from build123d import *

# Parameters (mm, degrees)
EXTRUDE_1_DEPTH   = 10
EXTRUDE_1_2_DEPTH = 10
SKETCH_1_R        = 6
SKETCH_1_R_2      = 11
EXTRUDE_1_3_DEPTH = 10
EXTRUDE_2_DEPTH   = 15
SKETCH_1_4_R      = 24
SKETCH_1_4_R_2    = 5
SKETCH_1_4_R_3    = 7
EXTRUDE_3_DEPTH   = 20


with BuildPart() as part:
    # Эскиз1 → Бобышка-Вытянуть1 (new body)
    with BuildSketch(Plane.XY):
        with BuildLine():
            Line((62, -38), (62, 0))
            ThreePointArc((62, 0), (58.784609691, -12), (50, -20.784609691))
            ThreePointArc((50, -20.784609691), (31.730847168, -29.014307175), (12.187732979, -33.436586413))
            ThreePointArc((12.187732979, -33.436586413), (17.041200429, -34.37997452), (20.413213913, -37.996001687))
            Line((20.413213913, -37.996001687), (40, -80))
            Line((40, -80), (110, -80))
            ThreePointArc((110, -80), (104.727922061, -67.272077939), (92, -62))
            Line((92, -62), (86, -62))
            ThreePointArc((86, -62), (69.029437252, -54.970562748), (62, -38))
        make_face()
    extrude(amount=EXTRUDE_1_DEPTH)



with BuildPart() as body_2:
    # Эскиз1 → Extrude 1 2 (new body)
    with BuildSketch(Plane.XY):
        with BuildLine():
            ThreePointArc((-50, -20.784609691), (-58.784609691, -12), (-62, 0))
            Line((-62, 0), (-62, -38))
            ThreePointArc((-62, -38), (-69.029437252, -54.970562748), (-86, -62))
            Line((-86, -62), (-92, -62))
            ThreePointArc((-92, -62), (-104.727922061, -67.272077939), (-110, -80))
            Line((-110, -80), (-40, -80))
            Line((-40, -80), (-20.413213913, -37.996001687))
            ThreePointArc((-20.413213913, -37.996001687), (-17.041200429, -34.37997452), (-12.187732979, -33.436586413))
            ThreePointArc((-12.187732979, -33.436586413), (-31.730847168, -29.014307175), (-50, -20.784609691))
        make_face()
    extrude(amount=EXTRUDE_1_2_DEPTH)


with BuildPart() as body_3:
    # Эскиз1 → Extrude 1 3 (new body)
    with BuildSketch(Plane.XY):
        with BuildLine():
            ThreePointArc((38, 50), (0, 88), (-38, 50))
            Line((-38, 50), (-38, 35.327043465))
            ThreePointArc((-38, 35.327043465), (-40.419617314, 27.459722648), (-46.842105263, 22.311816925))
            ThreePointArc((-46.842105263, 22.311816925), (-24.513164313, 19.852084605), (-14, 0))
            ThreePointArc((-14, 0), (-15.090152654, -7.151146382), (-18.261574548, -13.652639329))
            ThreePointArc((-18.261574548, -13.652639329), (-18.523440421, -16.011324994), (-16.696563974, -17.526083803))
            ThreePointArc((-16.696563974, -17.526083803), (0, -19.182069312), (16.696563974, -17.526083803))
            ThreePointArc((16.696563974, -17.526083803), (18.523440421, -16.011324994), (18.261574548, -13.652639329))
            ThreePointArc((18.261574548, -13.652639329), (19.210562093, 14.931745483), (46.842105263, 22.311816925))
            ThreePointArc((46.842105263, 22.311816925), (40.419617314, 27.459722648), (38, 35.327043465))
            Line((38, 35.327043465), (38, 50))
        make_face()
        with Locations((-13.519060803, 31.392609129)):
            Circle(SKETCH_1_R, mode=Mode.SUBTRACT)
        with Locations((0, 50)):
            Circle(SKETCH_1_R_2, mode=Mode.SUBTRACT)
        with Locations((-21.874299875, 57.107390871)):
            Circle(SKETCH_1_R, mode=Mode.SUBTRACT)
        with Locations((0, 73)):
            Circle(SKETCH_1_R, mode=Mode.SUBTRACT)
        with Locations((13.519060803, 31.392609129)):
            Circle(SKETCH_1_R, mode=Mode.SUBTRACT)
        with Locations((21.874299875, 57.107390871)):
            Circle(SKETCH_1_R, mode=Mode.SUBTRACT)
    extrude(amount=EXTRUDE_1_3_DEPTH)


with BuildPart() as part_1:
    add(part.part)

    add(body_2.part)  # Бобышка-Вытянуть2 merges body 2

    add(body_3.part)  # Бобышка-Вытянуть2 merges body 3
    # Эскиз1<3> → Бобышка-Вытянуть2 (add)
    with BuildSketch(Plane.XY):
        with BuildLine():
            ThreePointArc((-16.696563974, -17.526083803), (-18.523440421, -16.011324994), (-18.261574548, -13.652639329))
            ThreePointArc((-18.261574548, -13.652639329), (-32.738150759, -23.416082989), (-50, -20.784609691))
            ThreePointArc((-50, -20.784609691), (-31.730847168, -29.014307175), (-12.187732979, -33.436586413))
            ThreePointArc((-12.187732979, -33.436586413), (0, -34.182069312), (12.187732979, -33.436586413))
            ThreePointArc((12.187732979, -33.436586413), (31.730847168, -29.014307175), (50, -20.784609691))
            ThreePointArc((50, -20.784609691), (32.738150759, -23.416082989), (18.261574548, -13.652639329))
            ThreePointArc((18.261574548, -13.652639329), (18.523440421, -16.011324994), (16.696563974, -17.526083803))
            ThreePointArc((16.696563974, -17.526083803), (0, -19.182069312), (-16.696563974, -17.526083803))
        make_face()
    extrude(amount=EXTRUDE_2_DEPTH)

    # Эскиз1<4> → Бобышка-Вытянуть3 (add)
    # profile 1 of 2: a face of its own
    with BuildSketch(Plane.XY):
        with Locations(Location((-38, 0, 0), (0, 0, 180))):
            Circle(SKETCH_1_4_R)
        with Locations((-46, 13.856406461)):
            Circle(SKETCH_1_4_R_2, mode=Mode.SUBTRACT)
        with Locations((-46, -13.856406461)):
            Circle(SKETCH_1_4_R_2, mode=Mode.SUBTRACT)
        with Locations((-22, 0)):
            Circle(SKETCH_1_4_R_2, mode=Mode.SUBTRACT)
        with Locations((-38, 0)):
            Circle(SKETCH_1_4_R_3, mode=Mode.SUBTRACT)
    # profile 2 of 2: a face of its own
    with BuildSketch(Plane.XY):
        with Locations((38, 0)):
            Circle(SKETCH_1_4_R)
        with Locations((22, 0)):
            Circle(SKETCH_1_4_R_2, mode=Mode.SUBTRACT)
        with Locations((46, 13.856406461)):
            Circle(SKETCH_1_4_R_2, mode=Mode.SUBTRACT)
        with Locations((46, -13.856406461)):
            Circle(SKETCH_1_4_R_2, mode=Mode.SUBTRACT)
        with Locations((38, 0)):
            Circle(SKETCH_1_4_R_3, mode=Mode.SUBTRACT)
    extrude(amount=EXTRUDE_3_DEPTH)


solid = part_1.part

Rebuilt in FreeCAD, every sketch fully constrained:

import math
import FreeCAD as App
import Part
import Sketcher
Q = App.Units.Quantity

doc = App.newDocument("Part")
body = doc.addObject("PartDesign::Body", "Body")

# Sketch on XY plane
sketch1 = doc.addObject("Sketcher::SketchObject", "Sketch")
body.addObject(sketch1)
sketch1.AttachmentSupport = (doc.XY_Plane, [""])
sketch1.MapMode = "FlatFace"
sketch1.addGeometry([
    Part.LineSegment(App.Vector(62, -38, 0), App.Vector(62, 0, 0)),  # 0
    Part.ArcOfCircle(Part.Circle(App.Vector(38, 0, 0), App.Vector(0, 0, 1), 24), math.radians(-60), math.radians(0)),  # 1
    Part.ArcOfCircle(Part.Circle(App.Vector(0, 65.817931, 0), App.Vector(0, 0, 1), 100), math.radians(-82.999539), math.radians(-60)),  # 2
    Part.ArcOfCircle(Part.Circle(App.Vector(13.162752, -41.376948, 0), App.Vector(0, 0, 1), 8), math.radians(25), math.radians(97.000461)),  # 3
    Part.LineSegment(App.Vector(20.413214, -37.996002, 0), App.Vector(40, -80, 0)),  # 4
    Part.LineSegment(App.Vector(40, -80, 0), App.Vector(110, -80, 0)),  # 5
    Part.ArcOfCircle(Part.Circle(App.Vector(92, -80, 0), App.Vector(0, 0, 1), 18), math.radians(0), math.radians(90)),  # 6
    Part.LineSegment(App.Vector(92, -62, 0), App.Vector(86, -62, 0)),  # 7
    Part.ArcOfCircle(Part.Circle(App.Vector(86, -38, 0), App.Vector(0, 0, 1), 24), math.radians(-180), math.radians(-90)),  # 8
], False)
sketch1.addConstraint([
    Sketcher.Constraint("Tangent", 0, 2, 1, 2),
    Sketcher.Constraint("Tangent", 1, 1, 2, 2),
    Sketcher.Constraint("Tangent", 2, 1, 3, 2),
    Sketcher.Constraint("Tangent", 3, 1, 4, 1),
    Sketcher.Constraint("Coincident", 4, 2, 5, 1),
    Sketcher.Constraint("Coincident", 5, 2, 6, 1),
    Sketcher.Constraint("Tangent", 6, 2, 7, 1),
    Sketcher.Constraint("Tangent", 7, 2, 8, 2),
    Sketcher.Constraint("Tangent", 8, 1, 0, 1),
    Sketcher.Constraint("Vertical", 0),
    Sketcher.Constraint("Horizontal", 5),
    Sketcher.Constraint("Horizontal", 7),
    Sketcher.Constraint("Equal", 1, 8),
    Sketcher.Constraint("PointOnObject", 1, 3, -1),
    Sketcher.Constraint("PointOnObject", 2, 3, -2),
    Sketcher.Constraint("Horizontal", 6, 3, 4, 2),
    Sketcher.Constraint("Radius", 1, 24.0),
    Sketcher.Constraint("Radius", 2, 100.0),
    Sketcher.Constraint("Radius", 3, 8.0),
    Sketcher.Constraint("Radius", 6, 18.0),
    Sketcher.Constraint("DistanceX", 5, 1, 5, 2, 70.0),
    Sketcher.Constraint("DistanceX", 7, 2, 7, 1, 6.0),
    Sketcher.Constraint("DistanceY", 0, 1, 0, 2, 38.0),
    Sketcher.Constraint("Angle", 4, Q("-65 deg")),
    Sketcher.Constraint("DistanceX", -1, 1, 1, 3, 38.0),
])
pad1 = doc.addObject("PartDesign::Pad", "Pad")
body.addObject(pad1)
pad1.Profile = sketch1
pad1.Length = 10
body2 = doc.addObject("PartDesign::Body", "Body001")

# Sketch on XY plane
sketch2 = doc.addObject("Sketcher::SketchObject", "Sketch001")
body2.addObject(sketch2)
sketch2.AttachmentSupport = (doc.getObject("XY_Plane001"), [""])
sketch2.MapMode = "FlatFace"
sketch2.addGeometry([
    Part.ArcOfCircle(Part.Circle(App.Vector(-38, 0, 0), App.Vector(0, 0, 1), 24), math.radians(180), math.radians(240)),  # 0
    Part.LineSegment(App.Vector(-62, 0, 0), App.Vector(-62, -38, 0)),  # 1
    Part.ArcOfCircle(Part.Circle(App.Vector(-86, -38, 0), App.Vector(0, 0, 1), 24), math.radians(-90), math.radians(0)),  # 2
    Part.LineSegment(App.Vector(-86, -62, 0), App.Vector(-92, -62, 0)),  # 3
    Part.ArcOfCircle(Part.Circle(App.Vector(-92, -80, 0), App.Vector(0, 0, 1), 18), math.radians(90), math.radians(180)),  # 4
    Part.LineSegment(App.Vector(-110, -80, 0), App.Vector(-40, -80, 0)),  # 5
    Part.LineSegment(App.Vector(-40, -80, 0), App.Vector(-20.413214, -37.996002, 0)),  # 6
    Part.ArcOfCircle(Part.Circle(App.Vector(-13.162752, -41.376948, 0), App.Vector(0, 0, 1), 8), math.radians(82.999539), math.radians(155)),  # 7
    Part.ArcOfCircle(Part.Circle(App.Vector(0, 65.817931, 0), App.Vector(0, 0, 1), 100), math.radians(-120), math.radians(-97.000461)),  # 8
], False)
sketch2.addConstraint([
    Sketcher.Constraint("Tangent", 0, 1, 1, 1),
    Sketcher.Constraint("Tangent", 1, 2, 2, 2),
    Sketcher.Constraint("Tangent", 2, 1, 3, 1),
    Sketcher.Constraint("Tangent", 3, 2, 4, 1),
    Sketcher.Constraint("Coincident", 4, 2, 5, 1),
    Sketcher.Constraint("Coincident", 5, 2, 6, 1),
    Sketcher.Constraint("Tangent", 6, 2, 7, 2),
    Sketcher.Constraint("Tangent", 7, 1, 8, 2),
    Sketcher.Constraint("Tangent", 8, 1, 0, 2),
    Sketcher.Constraint("Vertical", 1),
    Sketcher.Constraint("Horizontal", 3),
    Sketcher.Constraint("Horizontal", 5),
    Sketcher.Constraint("Equal", 0, 2),
    Sketcher.Constraint("PointOnObject", 0, 3, -1),
    Sketcher.Constraint("PointOnObject", 8, 3, -2),
    Sketcher.Constraint("Radius", 0, 24.0),
    Sketcher.Constraint("Radius", 4, 18.0),
    Sketcher.Constraint("Radius", 7, 8.0),
    Sketcher.Constraint("Radius", 8, 100.0),
    Sketcher.Constraint("DistanceX", 3, 2, 3, 1, 6.0),
    Sketcher.Constraint("DistanceX", 5, 1, 5, 2, 70.0),
    Sketcher.Constraint("DistanceY", 1, 2, 1, 1, 38.0),
    Sketcher.Constraint("Angle", 6, Q("65 deg")),
    Sketcher.Constraint("DistanceX", 0, 3, -1, 1, 38.0),
    Sketcher.Constraint("DistanceY", 4, 2, -1, 1, 80.0),
])
pad2 = doc.addObject("PartDesign::Pad", "Pad001")
body2.addObject(pad2)
pad2.Profile = sketch2
pad2.Length = 10
body3 = doc.addObject("PartDesign::Body", "Body002")

# Sketch on XY plane
sketch3 = doc.addObject("Sketcher::SketchObject", "Sketch002")
body3.addObject(sketch3)
sketch3.AttachmentSupport = (doc.getObject("XY_Plane002"), [""])
sketch3.MapMode = "FlatFace"
sketch3.addGeometry([
    Part.ArcOfCircle(Part.Circle(App.Vector(0, 50, 0), App.Vector(0, 0, 1), 38), math.radians(0), math.radians(180)),  # 0
    Part.LineSegment(App.Vector(-38, 50, 0), App.Vector(-38, 35.327043, 0)),  # 1
    Part.ArcOfCircle(Part.Circle(App.Vector(-52, 35.327043, 0), App.Vector(0, 0, 1), 14), math.radians(-68.381728), math.radians(0)),  # 2
    Part.ArcOfCircle(Part.Circle(App.Vector(-38, 0, 0), App.Vector(0, 0, 1), 24), math.radians(0), math.radians(111.618272)),  # 3
    Part.ArcOfCircle(Part.Circle(App.Vector(-38, 0, 0), App.Vector(0, 0, 1), 24), math.radians(-34.670766), math.radians(0)),  # 4
    Part.ArcOfCircle(Part.Circle(App.Vector(-16.205489, -15.074789, 0), App.Vector(0, 0, 1), 2.5), math.radians(145.329234), math.radians(258.671718)),  # 5
    Part.ArcOfCircle(Part.Circle(App.Vector(0, 65.817931, 0), App.Vector(0, 0, 1), 85), math.radians(-101.328282), math.radians(-78.671718)),  # 6
    Part.ArcOfCircle(Part.Circle(App.Vector(16.205489, -15.074789, 0), App.Vector(0, 0, 1), 2.5), math.radians(-78.671718), math.radians(34.670766)),  # 7
    Part.ArcOfCircle(Part.Circle(App.Vector(38, 0, 0), App.Vector(0, 0, 1), 24), math.radians(68.381728), math.radians(214.670766)),  # 8
    Part.ArcOfCircle(Part.Circle(App.Vector(52, 35.327043, 0), App.Vector(0, 0, 1), 14), math.radians(-180), math.radians(-111.618272)),  # 9
    Part.LineSegment(App.Vector(38, 35.327043, 0), App.Vector(38, 50, 0)),  # 10
    Part.Circle(App.Vector(-13.519061, 31.392609, 0), App.Vector(0, 0, 1), 6),  # 11
    Part.Circle(App.Vector(0, 50, 0), App.Vector(0, 0, 1), 11),  # 12
    Part.Circle(App.Vector(13.519061, 31.392609, 0), App.Vector(0, 0, 1), 6),  # 13
    Part.Circle(App.Vector(-21.8743, 57.107391, 0), App.Vector(0, 0, 1), 6),  # 14
    Part.Circle(App.Vector(0, 73, 0), App.Vector(0, 0, 1), 6),  # 15
    Part.Circle(App.Vector(21.8743, 57.107391, 0), App.Vector(0, 0, 1), 6),  # 16
], False)
sketch3.addConstraint([
    Sketcher.Constraint("Tangent", 0, 2, 1, 1),
    Sketcher.Constraint("Tangent", 1, 2, 2, 2),
    Sketcher.Constraint("Tangent", 2, 1, 3, 2),
    Sketcher.Constraint("Tangent", 3, 1, 4, 2),
    Sketcher.Constraint("Tangent", 4, 1, 5, 1),
    Sketcher.Constraint("Tangent", 5, 2, 6, 1),
    Sketcher.Constraint("Tangent", 6, 2, 7, 1),
    Sketcher.Constraint("Tangent", 7, 2, 8, 2),
    Sketcher.Constraint("Tangent", 8, 1, 9, 2),
    Sketcher.Constraint("Tangent", 9, 1, 10, 1),
    Sketcher.Constraint("Tangent", 10, 2, 0, 1),
    Sketcher.Constraint("Vertical", 1),
    Sketcher.Constraint("Vertical", 10),
    Sketcher.Constraint("Coincident", 12, 3, 0, 3),
    Sketcher.Constraint("Equal", 3, 4),
    Sketcher.Constraint("Equal", 5, 7),
    Sketcher.Constraint("Equal", 4, 8),
    Sketcher.Constraint("Equal", 2, 9),
    Sketcher.Constraint("Equal", 11, 13),
    Sketcher.Constraint("Equal", 13, 14),
    Sketcher.Constraint("Equal", 14, 15),
    Sketcher.Constraint("Equal", 15, 16),
    Sketcher.Constraint("Symmetric", 3, 3, 8, 3, -1, 1),
    Sketcher.Constraint("Symmetric", 5, 3, 7, 3, -2),
    Sketcher.Constraint("Symmetric", 11, 3, 13, 3, -2),
    Sketcher.Constraint("Symmetric", 14, 3, 16, 3, -2),
    Sketcher.Constraint("PointOnObject", 0, 3, -2),
    Sketcher.Constraint("PointOnObject", 15, 3, -2),
    Sketcher.Constraint("PointOnObject", 3, 1, -1),
    Sketcher.Constraint("Vertical", 4, 3, 0, 2),
    Sketcher.Constraint("Diameter", 11, 12.0),
    Sketcher.Constraint("Diameter", 12, 22.0),
    Sketcher.Constraint("Radius", 0, 38.0),
    Sketcher.Constraint("Radius", 2, 14.0),
    Sketcher.Constraint("Radius", 3, 24.0),
    Sketcher.Constraint("Radius", 6, 85.0),
    Sketcher.Constraint("Radius", 5, 2.5),
    Sketcher.Constraint("DistanceY", -1, 1, 0, 3, 50.0),
    Sketcher.Constraint("DistanceY", -1, 1, 15, 3, 73.0),
    Sketcher.Constraint("DistanceX", 14, 3, -1, 1, 21.8743),
    Sketcher.Constraint("DistanceX", 5, 3, -1, 1, 16.205489),
    Sketcher.Constraint("DistanceX", 11, 3, -1, 1, 13.519061),
    Sketcher.Constraint("DistanceY", -1, 1, 11, 3, 31.392609),
    Sketcher.Constraint("DistanceY", -1, 1, 14, 3, 57.107391),
])
pad3 = doc.addObject("PartDesign::Pad", "Pad002")
body3.addObject(pad3)
pad3.Profile = sketch3
pad3.Length = 10
body.AllowCompound = True
doc.recompute()

boolean = doc.addObject("PartDesign::Boolean", "Boolean")
body.addObject(boolean)
boolean.Type = "Fuse"
boolean.addObjects([body2])
doc.recompute()

boolean2 = doc.addObject("PartDesign::Boolean", "Boolean001")
body.addObject(boolean2)
boolean2.Type = "Fuse"
boolean2.addObjects([body3])

# Sketch on XY plane
sketch4 = doc.addObject("Sketcher::SketchObject", "Sketch003")
body.addObject(sketch4)
sketch4.AttachmentSupport = (doc.XY_Plane, [""])
sketch4.MapMode = "FlatFace"
sketch4.addGeometry([
    Part.ArcOfCircle(Part.Circle(App.Vector(-16.205489, -15.074789, 0), App.Vector(0, 0, 1), 2.5), math.radians(145.329234), math.radians(258.671718)),  # 0
    Part.ArcOfCircle(Part.Circle(App.Vector(-38, 0, 0), App.Vector(0, 0, 1), 24), math.radians(-120), math.radians(-34.670766)),  # 1
    Part.ArcOfCircle(Part.Circle(App.Vector(0, 65.817931, 0), App.Vector(0, 0, 1), 100), math.radians(-120), math.radians(-97.000461)),  # 2
    Part.ArcOfCircle(Part.Circle(App.Vector(0, 65.817931, 0), App.Vector(0, 0, 1), 100), math.radians(-97.000461), math.radians(-82.999539)),  # 3
    Part.ArcOfCircle(Part.Circle(App.Vector(0, 65.817931, 0), App.Vector(0, 0, 1), 100), math.radians(-82.999539), math.radians(-60)),  # 4
    Part.ArcOfCircle(Part.Circle(App.Vector(38, 0, 0), App.Vector(0, 0, 1), 24), math.radians(-145.329234), math.radians(-60)),  # 5
    Part.ArcOfCircle(Part.Circle(App.Vector(16.205489, -15.074789, 0), App.Vector(0, 0, 1), 2.5), math.radians(-78.671718), math.radians(34.670766)),  # 6
    Part.ArcOfCircle(Part.Circle(App.Vector(0, 65.817931, 0), App.Vector(0, 0, 1), 85), math.radians(-101.328282), math.radians(-78.671718)),  # 7
], False)
sketch4.addConstraint([
    Sketcher.Constraint("Tangent", 0, 1, 1, 2),
    Sketcher.Constraint("Tangent", 1, 1, 2, 1),
    Sketcher.Constraint("Tangent", 2, 2, 3, 1),
    Sketcher.Constraint("Tangent", 3, 2, 4, 1),
    Sketcher.Constraint("Tangent", 4, 2, 5, 2),
    Sketcher.Constraint("Tangent", 5, 1, 6, 2),
    Sketcher.Constraint("Tangent", 6, 1, 7, 2),
    Sketcher.Constraint("Tangent", 7, 1, 0, 2),
    Sketcher.Constraint("Coincident", 4, 3, 2, 3),
    Sketcher.Constraint("Coincident", 7, 3, 2, 3),
    Sketcher.Constraint("Equal", 1, 5),
    Sketcher.Constraint("Equal", 0, 6),
    Sketcher.Constraint("Symmetric", 1, 3, 5, 3, -1, 1),
    Sketcher.Constraint("Symmetric", 2, 2, 3, 2, -2),
    Sketcher.Constraint("Radius", 1, 24.0),
    Sketcher.Constraint("Radius", 2, 100.0),
    Sketcher.Constraint("Radius", 7, 85.0),
    Sketcher.Constraint("Radius", 0, 2.5),
    Sketcher.Constraint("DistanceX", 1, 3, -1, 1, 38.0),
    Sketcher.Constraint("DistanceX", 0, 1, 2, 2, 6.073842),
])
pad4 = doc.addObject("PartDesign::Pad", "Pad003")
body.addObject(pad4)
pad4.Profile = sketch4
pad4.Length = 15

# Sketch on XY plane
sketch5 = doc.addObject("Sketcher::SketchObject", "Sketch004")
body.addObject(sketch5)
sketch5.AttachmentSupport = (doc.XY_Plane, [""])
sketch5.MapMode = "FlatFace"
sketch5.addGeometry([
    Part.Circle(App.Vector(-38, 0, 0), App.Vector(0, 0, 1), 24),  # 0
    Part.Circle(App.Vector(-46, 13.856406, 0), App.Vector(0, 0, 1), 5),  # 1
    Part.Circle(App.Vector(-22, 0, 0), App.Vector(0, 0, 1), 5),  # 2
    Part.Circle(App.Vector(-38, 0, 0), App.Vector(0, 0, 1), 7),  # 3
    Part.Circle(App.Vector(-46, -13.856406, 0), App.Vector(0, 0, 1), 5),  # 4
    Part.Circle(App.Vector(38, 0, 0), App.Vector(0, 0, 1), 24),  # 5
    Part.Circle(App.Vector(46, -13.856406, 0), App.Vector(0, 0, 1), 5),  # 6
    Part.Circle(App.Vector(22, 0, 0), App.Vector(0, 0, 1), 5),  # 7
    Part.Circle(App.Vector(38, 0, 0), App.Vector(0, 0, 1), 7),  # 8
    Part.Circle(App.Vector(46, 13.856406, 0), App.Vector(0, 0, 1), 5),  # 9
], False)
sketch5.addConstraint([
    Sketcher.Constraint("Coincident", 3, 3, 0, 3),
    Sketcher.Constraint("Coincident", 8, 3, 5, 3),
    Sketcher.Constraint("Equal", 1, 2),
    Sketcher.Constraint("Equal", 2, 4),
    Sketcher.Constraint("Equal", 0, 5),
    Sketcher.Constraint("Equal", 4, 6),
    Sketcher.Constraint("Equal", 6, 7),
    Sketcher.Constraint("Equal", 3, 8),
    Sketcher.Constraint("Equal", 7, 9),
    Sketcher.Constraint("Symmetric", 0, 3, 5, 3, -1, 1),
    Sketcher.Constraint("Symmetric", 1, 3, 6, 3, -1, 1),
    Sketcher.Constraint("Symmetric", 2, 3, 7, 3, -1, 1),
    Sketcher.Constraint("Symmetric", 4, 3, 9, 3, -1, 1),
    Sketcher.Constraint("Symmetric", 4, 3, 6, 3, -2),
    Sketcher.Constraint("PointOnObject", 0, 3, -1),
    Sketcher.Constraint("PointOnObject", 2, 3, -1),
    Sketcher.Constraint("Diameter", 0, 48.0),
    Sketcher.Constraint("Diameter", 1, 10.0),
    Sketcher.Constraint("Diameter", 3, 14.0),
    Sketcher.Constraint("DistanceX", 0, 3, -1, 1, 38.0),
    Sketcher.Constraint("DistanceX", 1, 3, -1, 1, 46.0),
    Sketcher.Constraint("DistanceX", 2, 3, -1, 1, 22.0),
    Sketcher.Constraint("DistanceY", -1, 1, 1, 3, 13.856406),
])
pad5 = doc.addObject("PartDesign::Pad", "Pad004")
body.addObject(pad5)
pad5.Profile = sketch5
pad5.Length = 20

doc.recompute()
